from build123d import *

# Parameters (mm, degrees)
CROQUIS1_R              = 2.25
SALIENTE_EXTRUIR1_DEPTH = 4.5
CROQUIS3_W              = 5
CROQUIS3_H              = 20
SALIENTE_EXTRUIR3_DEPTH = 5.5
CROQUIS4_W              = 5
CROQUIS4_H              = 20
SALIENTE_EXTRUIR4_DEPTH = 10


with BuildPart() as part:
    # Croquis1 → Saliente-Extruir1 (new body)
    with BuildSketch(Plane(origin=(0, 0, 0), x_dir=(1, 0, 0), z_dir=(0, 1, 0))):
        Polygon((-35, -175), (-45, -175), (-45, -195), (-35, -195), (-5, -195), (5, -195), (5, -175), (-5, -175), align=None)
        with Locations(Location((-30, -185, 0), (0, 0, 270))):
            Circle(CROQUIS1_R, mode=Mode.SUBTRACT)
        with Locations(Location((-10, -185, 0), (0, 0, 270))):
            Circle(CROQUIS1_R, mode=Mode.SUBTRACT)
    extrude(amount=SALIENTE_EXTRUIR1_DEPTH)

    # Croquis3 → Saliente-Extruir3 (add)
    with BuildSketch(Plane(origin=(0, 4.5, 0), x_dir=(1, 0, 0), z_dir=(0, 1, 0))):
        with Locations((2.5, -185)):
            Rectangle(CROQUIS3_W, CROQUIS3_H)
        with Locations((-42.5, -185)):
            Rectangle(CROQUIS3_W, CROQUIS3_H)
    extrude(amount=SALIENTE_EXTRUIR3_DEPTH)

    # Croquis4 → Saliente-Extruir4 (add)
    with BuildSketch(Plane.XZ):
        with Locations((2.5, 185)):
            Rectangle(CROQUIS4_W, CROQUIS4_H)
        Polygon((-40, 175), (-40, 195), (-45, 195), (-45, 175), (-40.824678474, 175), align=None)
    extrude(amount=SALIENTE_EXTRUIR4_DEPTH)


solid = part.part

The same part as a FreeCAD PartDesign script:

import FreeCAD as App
import Part
import Sketcher
from FreeCAD import Vector
Q = App.Units.Quantity

doc = App.newDocument("Part")
body = doc.addObject("PartDesign::Body", "Body")

# Sketch on XZ plane
sketch1 = body.newObject("Sketcher::SketchObject", "Sketch")
sketch1.AttachmentSupport = (doc.getObject("XZ_Plane"), [""])
sketch1.MapMode = "FlatFace"
sketch1.addGeometry(Part.LineSegment(Vector(-45, 175, 0), Vector(-45, 195, 0)), False)
sketch1.addGeometry(Part.LineSegment(Vector(-45, 195, 0), Vector(5, 195, 0)), False)
sketch1.addGeometry(Part.LineSegment(Vector(5, 195, 0), Vector(5, 175, 0)), False)
sketch1.addGeometry(Part.LineSegment(Vector(5, 175, 0), Vector(-45, 175, 0)), False)
sketch1.addGeometry(Part.Circle(Vector(-30, 185, 0), Vector(0, 0, 1), 2.2), False)
sketch1.addGeometry(Part.Circle(Vector(-10, 185, 0), Vector(0, 0, 1), 2.2), False)
sketch1.addConstraint(Sketcher.Constraint("Coincident", 0, 2, 1, 1))
sketch1.addConstraint(Sketcher.Constraint("Coincident", 1, 2, 2, 1))
sketch1.addConstraint(Sketcher.Constraint("Coincident", 2, 2, 3, 1))
sketch1.addConstraint(Sketcher.Constraint("Coincident", 3, 2, 0, 1))
sketch1.addConstraint(Sketcher.Constraint("Vertical", 0))
sketch1.addConstraint(Sketcher.Constraint("Horizontal", 1))
sketch1.addConstraint(Sketcher.Constraint("Vertical", 2))
sketch1.addConstraint(Sketcher.Constraint("Horizontal", 3))
sketch1.addConstraint(Sketcher.Constraint("Equal", 4, 5))
sketch1.addConstraint(Sketcher.Constraint("Horizontal", 4, 3, 5, 3))
sketch1.addConstraint(Sketcher.Constraint("Diameter", 4, Q("4.5 mm")))
sketch1.addConstraint(Sketcher.Constraint("DistanceX", 1, 1, 1, 2, Q("50 mm")))
sketch1.addConstraint(Sketcher.Constraint("DistanceY", 0, 1, 0, 2, Q("20 mm")))
sketch1.addConstraint(Sketcher.Constraint("DistanceX", 4, 3, -1, 1, Q("30 mm")))
sketch1.addConstraint(Sketcher.Constraint("DistanceY", -1, 1, 4, 3, Q("185 mm")))
sketch1.addConstraint(Sketcher.Constraint("DistanceX", 5, 3, -1, 1, Q("10 mm")))
sketch1.addConstraint(Sketcher.Constraint("DistanceX", 0, 2, -1, 1, Q("45 mm")))
sketch1.addConstraint(Sketcher.Constraint("DistanceY", -1, 1, 0, 2, Q("195 mm")))
pad1 = body.newObject("PartDesign::Pad", "Pad")
pad1.Profile = sketch1
pad1.Length = 4.5
pad1.Reversed = True

# Sketch on XZ plane
sketch2 = body.newObject("Sketcher::SketchObject", "Sketch001")
sketch2.AttachmentSupport = (doc.getObject("XZ_Plane"), [""])
sketch2.MapMode = "FlatFace"
sketch2.AttachmentOffset = App.Placement(Vector(0, 0, -4.5), App.Rotation())
sketch2.addGeometry(Part.LineSegment(Vector(0, 175, 0), Vector(0, 195, 0)), False)
sketch2.addGeometry(Part.LineSegment(Vector(0, 195, 0), Vector(5, 195, 0)), False)
sketch2.addGeometry(Part.LineSegment(Vector(5, 195, 0), Vector(5, 175, 0)), False)
sketch2.addGeometry(Part.LineSegment(Vector(5, 175, 0), Vector(0, 175, 0)), False)
sketch2.addGeometry(Part.LineSegment(Vector(-45, 175, 0), Vector(-45, 195, 0)), False)
sketch2.addGeometry(Part.LineSegment(Vector(-45, 195, 0), Vector(-40, 195, 0)), False)
sketch2.addGeometry(Part.LineSegment(Vector(-40, 195, 0), Vector(-40, 175, 0)), False)
sketch2.addGeometry(Part.LineSegment(Vector(-40, 175, 0), Vector(-45, 175, 0)), False)
sketch2.addConstraint(Sketcher.Constraint("Coincident", 0, 2, 1, 1))
sketch2.addConstraint(Sketcher.Constraint("Coincident", 1, 2, 2, 1))
sketch2.addConstraint(Sketcher.Constraint("Coincident", 2, 2, 3, 1))
sketch2.addConstraint(Sketcher.Constraint("Coincident", 3, 2, 0, 1))
sketch2.addConstraint(Sketcher.Constraint("Coincident", 4, 2, 5, 1))
sketch2.addConstraint(Sketcher.Constraint("Coincident", 5, 2, 6, 1))
sketch2.addConstraint(Sketcher.Constraint("Coincident", 6, 2, 7, 1))
sketch2.addConstraint(Sketcher.Constraint("Coincident", 7, 2, 4, 1))
sketch2.addConstraint(Sketcher.Constraint("Vertical", 0))
sketch2.addConstraint(Sketcher.Constraint("Horizontal", 1))
sketch2.addConstraint(Sketcher.Constraint("Vertical", 2))
sketch2.addConstraint(Sketcher.Constraint("Horizontal", 3))
sketch2.addConstraint(Sketcher.Constraint("Vertical", 4))
sketch2.addConstraint(Sketcher.Constraint("Horizontal", 5))
sketch2.addConstraint(Sketcher.Constraint("Vertical", 6))
sketch2.addConstraint(Sketcher.Constraint("Horizontal", 7))
sketch2.addConstraint(Sketcher.Constraint("PointOnObject", 0, 2, -2))
sketch2.addConstraint(Sketcher.Constraint("Horizontal", 1, 2, 4, 2))
sketch2.addConstraint(Sketcher.Constraint("Horizontal", 3, 2, 6, 2))
sketch2.addConstraint(Sketcher.Constraint("Equal", 3, 5))
sketch2.addConstraint(Sketcher.Constraint("DistanceX", 1, 1, 1, 2, Q("5 mm")))
sketch2.addConstraint(Sketcher.Constraint("DistanceY", 0, 1, 0, 2, Q("20 mm")))
sketch2.addConstraint(Sketcher.Constraint("DistanceY", -1, 1, 0, 2, Q("195 mm")))
sketch2.addConstraint(Sketcher.Constraint("DistanceX", 4, 2, -1, 1, Q("45 mm")))
pad2 = body.newObject("PartDesign::Pad", "Pad001")
pad2.Profile = sketch2
pad2.Length = 5.5
pad2.Reversed = True

# Sketch on XZ plane
sketch3 = body.newObject("Sketcher::SketchObject", "Sketch002")
sketch3.AttachmentSupport = (doc.getObject("XZ_Plane"), [""])
sketch3.MapMode = "FlatFace"
sketch3.addGeometry(Part.LineSegment(Vector(0, 195, 0), Vector(0, 175, 0)), False)
sketch3.addGeometry(Part.LineSegment(Vector(0, 175, 0), Vector(5, 175, 0)), False)
sketch3.addGeometry(Part.LineSegment(Vector(5, 175, 0), Vector(5, 195, 0)), False)
sketch3.addGeometry(Part.LineSegment(Vector(5, 195, 0), Vector(0, 195, 0)), False)
sketch3.addGeometry(Part.LineSegment(Vector(-40, 175, 0), Vector(-40, 195, 0)), False)
sketch3.addGeometry(Part.LineSegment(Vector(-40, 195, 0), Vector(-45, 195, 0)), False)
sketch3.addGeometry(Part.LineSegment(Vector(-45, 195, 0), Vector(-45, 175, 0)), False)
sketch3.addGeometry(Part.LineSegment(Vector(-45, 175, 0), Vector(-40, 175, 0)), False)
sketch3.addConstraint(Sketcher.Constraint("Coincident", 0, 2, 1, 1))
sketch3.addConstraint(Sketcher.Constraint("Coincident", 1, 2, 2, 1))
sketch3.addConstraint(Sketcher.Constraint("Coincident", 2, 2, 3, 1))
sketch3.addConstraint(Sketcher.Constraint("Coincident", 3, 2, 0, 1))
sketch3.addConstraint(Sketcher.Constraint("Coincident", 4, 2, 5, 1))
sketch3.addConstraint(Sketcher.Constraint("Coincident", 5, 2, 6, 1))
sketch3.addConstraint(Sketcher.Constraint("Coincident", 6, 2, 7, 1))
sketch3.addConstraint(Sketcher.Constraint("Coincident", 7, 2, 4, 1))
sketch3.addConstraint(Sketcher.Constraint("Vertical", 0))
sketch3.addConstraint(Sketcher.Constraint("Horizontal", 1))
sketch3.addConstraint(Sketcher.Constraint("Vertical", 2))
sketch3.addConstraint(Sketcher.Constraint("Horizontal", 3))
sketch3.addConstraint(Sketcher.Constraint("Vertical", 4))
sketch3.addConstraint(Sketcher.Constraint("Horizontal", 5))
sketch3.addConstraint(Sketcher.Constraint("Vertical", 6))
sketch3.addConstraint(Sketcher.Constraint("Horizontal", 7))
sketch3.addConstraint(Sketcher.Constraint("PointOnObject", 0, 2, -2))
sketch3.addConstraint(Sketcher.Constraint("Horizontal", 3, 2, 4, 2))
sketch3.addConstraint(Sketcher.Constraint("Horizontal", 1, 2, 6, 2))
sketch3.addConstraint(Sketcher.Constraint("Equal", 3, 5))
sketch3.addConstraint(Sketcher.Constraint("DistanceX", 1, 1, 1, 2, Q("5 mm")))
sketch3.addConstraint(Sketcher.Constraint("DistanceY", 0, 2, 0, 1, Q("20 mm")))
sketch3.addConstraint(Sketcher.Constraint("DistanceY", -1, 1, 0, 2, Q("175 mm")))
sketch3.addConstraint(Sketcher.Constraint("DistanceX", 4, 2, -1, 1, Q("40 mm")))
pad3 = body.newObject("PartDesign::Pad", "Pad002")
pad3.Profile = sketch3
pad3.Length = 10

doc.recompute()
